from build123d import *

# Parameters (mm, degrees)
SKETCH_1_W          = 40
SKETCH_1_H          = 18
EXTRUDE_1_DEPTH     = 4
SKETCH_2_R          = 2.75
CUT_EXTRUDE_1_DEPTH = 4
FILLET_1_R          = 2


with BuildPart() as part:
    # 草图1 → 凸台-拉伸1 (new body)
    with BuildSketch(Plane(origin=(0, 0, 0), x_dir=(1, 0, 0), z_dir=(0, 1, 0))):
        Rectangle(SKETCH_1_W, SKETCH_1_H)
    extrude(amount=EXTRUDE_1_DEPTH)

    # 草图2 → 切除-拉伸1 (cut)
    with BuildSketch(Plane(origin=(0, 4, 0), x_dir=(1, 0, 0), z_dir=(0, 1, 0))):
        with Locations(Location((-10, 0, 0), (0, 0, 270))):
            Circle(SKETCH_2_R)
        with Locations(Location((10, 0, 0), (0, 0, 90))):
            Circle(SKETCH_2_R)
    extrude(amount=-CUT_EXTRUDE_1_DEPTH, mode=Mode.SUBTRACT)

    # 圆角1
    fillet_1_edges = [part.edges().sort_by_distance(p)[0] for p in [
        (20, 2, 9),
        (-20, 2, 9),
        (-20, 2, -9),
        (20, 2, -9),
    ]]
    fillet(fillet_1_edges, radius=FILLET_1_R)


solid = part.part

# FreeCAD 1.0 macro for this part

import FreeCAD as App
import Part
import Sketcher
Q = App.Units.Quantity


def edges_at(feature, points):
    """Names of the edges that pass closest to the given points."""
    edges = feature.Shape.Edges
    near = lambda p: min(range(len(edges)), key=lambda i: edges[i].distToShape(Part.Vertex(*p))[0])
    return sorted({f"Edge{near(p) + 1}" for p in points})

doc = App.newDocument("Part")
body = doc.addObject("PartDesign::Body", "Body")

# Sketch on XZ plane
sketch1 = body.newObject("Sketcher::SketchObject", "Sketch")
sketch1.AttachmentSupport = (doc.getObject("XZ_Plane"), [""])
sketch1.MapMode = "FlatFace"
sketch1.addGeometry([
    Part.LineSegment(App.Vector(-20, -9, 0), App.Vector(-20, 9, 0)),
    Part.LineSegment(App.Vector(-20, 9, 0), App.Vector(20, 9, 0)),
    Part.LineSegment(App.Vector(20, 9, 0), App.Vector(20, -9, 0)),
    Part.LineSegment(App.Vector(20, -9, 0), App.Vector(-20, -9, 0)),
], False)
sketch1.addConstraint([
    Sketcher.Constraint("Coincident", 0, 2, 1, 1),
    Sketcher.Constraint("Coincident", 1, 2, 2, 1),
    Sketcher.Constraint("Coincident", 2, 2, 3, 1),
    Sketcher.Constraint("Coincident", 3, 2, 0, 1),
    Sketcher.Constraint("Vertical", 0),
    Sketcher.Constraint("Horizontal", 1),
    Sketcher.Constraint("Vertical", 2),
    Sketcher.Constraint("Horizontal", 3),
    Sketcher.Constraint("Symmetric", 0, 2, 2, 2, -1, 1),
    Sketcher.Constraint("DistanceX", 1, 1, 1, 2, Q("40 mm")),
    Sketcher.Constraint("DistanceY", 0, 1, 0, 2, Q("18 mm")),
])
pad1 = body.newObject("PartDesign::Pad", "Pad")
pad1.Profile = sketch1
pad1.Length = 4
pad1.Reversed = True

# Sketch on XZ plane
sketch2 = body.newObject("Sketcher::SketchObject", "Sketch001")
sketch2.AttachmentSupport = (doc.getObject("XZ_Plane"), [""])
sketch2.MapMode = "FlatFace"
sketch2.AttachmentOffset = App.Placement(App.Vector(0, 0, -4), App.Rotation())
sketch2.addGeometry([
    Part.Circle(App.Vector(-10, 0, 0), App.Vector(0, 0, 1), 2.8),
    Part.Circle(App.Vector(10, 0, 0), App.Vector(0, 0, 1), 2.8),
], False)
sketch2.addConstraint([
    Sketcher.Constraint("Equal", 0, 1),
    Sketcher.Constraint("Symmetric", 0, 3, 1, 3, -1, 1),
    Sketcher.Constraint("PointOnObject", 0, 3, -1),
    Sketcher.Constraint("Diameter", 0, Q("5.5 mm")),
    Sketcher.Constraint("DistanceX", 0, 3, -1, 1, Q("10 mm")),
])
pocket1 = body.newObject("PartDesign::Pocket", "Pocket")
pocket1.Profile = sketch2
pocket1.Length = 4
pocket1.Reversed = True
doc.recompute()

fillet = body.newObject("PartDesign::Fillet", "Fillet")
fillet.Base = (pocket1, edges_at(pocket1, [
    (20, 2, 9),
    (-20, 2, 9),
    (-20, 2, -9),
    (20, 2, -9),
]))
fillet.Radius = 2

doc.recompute()
